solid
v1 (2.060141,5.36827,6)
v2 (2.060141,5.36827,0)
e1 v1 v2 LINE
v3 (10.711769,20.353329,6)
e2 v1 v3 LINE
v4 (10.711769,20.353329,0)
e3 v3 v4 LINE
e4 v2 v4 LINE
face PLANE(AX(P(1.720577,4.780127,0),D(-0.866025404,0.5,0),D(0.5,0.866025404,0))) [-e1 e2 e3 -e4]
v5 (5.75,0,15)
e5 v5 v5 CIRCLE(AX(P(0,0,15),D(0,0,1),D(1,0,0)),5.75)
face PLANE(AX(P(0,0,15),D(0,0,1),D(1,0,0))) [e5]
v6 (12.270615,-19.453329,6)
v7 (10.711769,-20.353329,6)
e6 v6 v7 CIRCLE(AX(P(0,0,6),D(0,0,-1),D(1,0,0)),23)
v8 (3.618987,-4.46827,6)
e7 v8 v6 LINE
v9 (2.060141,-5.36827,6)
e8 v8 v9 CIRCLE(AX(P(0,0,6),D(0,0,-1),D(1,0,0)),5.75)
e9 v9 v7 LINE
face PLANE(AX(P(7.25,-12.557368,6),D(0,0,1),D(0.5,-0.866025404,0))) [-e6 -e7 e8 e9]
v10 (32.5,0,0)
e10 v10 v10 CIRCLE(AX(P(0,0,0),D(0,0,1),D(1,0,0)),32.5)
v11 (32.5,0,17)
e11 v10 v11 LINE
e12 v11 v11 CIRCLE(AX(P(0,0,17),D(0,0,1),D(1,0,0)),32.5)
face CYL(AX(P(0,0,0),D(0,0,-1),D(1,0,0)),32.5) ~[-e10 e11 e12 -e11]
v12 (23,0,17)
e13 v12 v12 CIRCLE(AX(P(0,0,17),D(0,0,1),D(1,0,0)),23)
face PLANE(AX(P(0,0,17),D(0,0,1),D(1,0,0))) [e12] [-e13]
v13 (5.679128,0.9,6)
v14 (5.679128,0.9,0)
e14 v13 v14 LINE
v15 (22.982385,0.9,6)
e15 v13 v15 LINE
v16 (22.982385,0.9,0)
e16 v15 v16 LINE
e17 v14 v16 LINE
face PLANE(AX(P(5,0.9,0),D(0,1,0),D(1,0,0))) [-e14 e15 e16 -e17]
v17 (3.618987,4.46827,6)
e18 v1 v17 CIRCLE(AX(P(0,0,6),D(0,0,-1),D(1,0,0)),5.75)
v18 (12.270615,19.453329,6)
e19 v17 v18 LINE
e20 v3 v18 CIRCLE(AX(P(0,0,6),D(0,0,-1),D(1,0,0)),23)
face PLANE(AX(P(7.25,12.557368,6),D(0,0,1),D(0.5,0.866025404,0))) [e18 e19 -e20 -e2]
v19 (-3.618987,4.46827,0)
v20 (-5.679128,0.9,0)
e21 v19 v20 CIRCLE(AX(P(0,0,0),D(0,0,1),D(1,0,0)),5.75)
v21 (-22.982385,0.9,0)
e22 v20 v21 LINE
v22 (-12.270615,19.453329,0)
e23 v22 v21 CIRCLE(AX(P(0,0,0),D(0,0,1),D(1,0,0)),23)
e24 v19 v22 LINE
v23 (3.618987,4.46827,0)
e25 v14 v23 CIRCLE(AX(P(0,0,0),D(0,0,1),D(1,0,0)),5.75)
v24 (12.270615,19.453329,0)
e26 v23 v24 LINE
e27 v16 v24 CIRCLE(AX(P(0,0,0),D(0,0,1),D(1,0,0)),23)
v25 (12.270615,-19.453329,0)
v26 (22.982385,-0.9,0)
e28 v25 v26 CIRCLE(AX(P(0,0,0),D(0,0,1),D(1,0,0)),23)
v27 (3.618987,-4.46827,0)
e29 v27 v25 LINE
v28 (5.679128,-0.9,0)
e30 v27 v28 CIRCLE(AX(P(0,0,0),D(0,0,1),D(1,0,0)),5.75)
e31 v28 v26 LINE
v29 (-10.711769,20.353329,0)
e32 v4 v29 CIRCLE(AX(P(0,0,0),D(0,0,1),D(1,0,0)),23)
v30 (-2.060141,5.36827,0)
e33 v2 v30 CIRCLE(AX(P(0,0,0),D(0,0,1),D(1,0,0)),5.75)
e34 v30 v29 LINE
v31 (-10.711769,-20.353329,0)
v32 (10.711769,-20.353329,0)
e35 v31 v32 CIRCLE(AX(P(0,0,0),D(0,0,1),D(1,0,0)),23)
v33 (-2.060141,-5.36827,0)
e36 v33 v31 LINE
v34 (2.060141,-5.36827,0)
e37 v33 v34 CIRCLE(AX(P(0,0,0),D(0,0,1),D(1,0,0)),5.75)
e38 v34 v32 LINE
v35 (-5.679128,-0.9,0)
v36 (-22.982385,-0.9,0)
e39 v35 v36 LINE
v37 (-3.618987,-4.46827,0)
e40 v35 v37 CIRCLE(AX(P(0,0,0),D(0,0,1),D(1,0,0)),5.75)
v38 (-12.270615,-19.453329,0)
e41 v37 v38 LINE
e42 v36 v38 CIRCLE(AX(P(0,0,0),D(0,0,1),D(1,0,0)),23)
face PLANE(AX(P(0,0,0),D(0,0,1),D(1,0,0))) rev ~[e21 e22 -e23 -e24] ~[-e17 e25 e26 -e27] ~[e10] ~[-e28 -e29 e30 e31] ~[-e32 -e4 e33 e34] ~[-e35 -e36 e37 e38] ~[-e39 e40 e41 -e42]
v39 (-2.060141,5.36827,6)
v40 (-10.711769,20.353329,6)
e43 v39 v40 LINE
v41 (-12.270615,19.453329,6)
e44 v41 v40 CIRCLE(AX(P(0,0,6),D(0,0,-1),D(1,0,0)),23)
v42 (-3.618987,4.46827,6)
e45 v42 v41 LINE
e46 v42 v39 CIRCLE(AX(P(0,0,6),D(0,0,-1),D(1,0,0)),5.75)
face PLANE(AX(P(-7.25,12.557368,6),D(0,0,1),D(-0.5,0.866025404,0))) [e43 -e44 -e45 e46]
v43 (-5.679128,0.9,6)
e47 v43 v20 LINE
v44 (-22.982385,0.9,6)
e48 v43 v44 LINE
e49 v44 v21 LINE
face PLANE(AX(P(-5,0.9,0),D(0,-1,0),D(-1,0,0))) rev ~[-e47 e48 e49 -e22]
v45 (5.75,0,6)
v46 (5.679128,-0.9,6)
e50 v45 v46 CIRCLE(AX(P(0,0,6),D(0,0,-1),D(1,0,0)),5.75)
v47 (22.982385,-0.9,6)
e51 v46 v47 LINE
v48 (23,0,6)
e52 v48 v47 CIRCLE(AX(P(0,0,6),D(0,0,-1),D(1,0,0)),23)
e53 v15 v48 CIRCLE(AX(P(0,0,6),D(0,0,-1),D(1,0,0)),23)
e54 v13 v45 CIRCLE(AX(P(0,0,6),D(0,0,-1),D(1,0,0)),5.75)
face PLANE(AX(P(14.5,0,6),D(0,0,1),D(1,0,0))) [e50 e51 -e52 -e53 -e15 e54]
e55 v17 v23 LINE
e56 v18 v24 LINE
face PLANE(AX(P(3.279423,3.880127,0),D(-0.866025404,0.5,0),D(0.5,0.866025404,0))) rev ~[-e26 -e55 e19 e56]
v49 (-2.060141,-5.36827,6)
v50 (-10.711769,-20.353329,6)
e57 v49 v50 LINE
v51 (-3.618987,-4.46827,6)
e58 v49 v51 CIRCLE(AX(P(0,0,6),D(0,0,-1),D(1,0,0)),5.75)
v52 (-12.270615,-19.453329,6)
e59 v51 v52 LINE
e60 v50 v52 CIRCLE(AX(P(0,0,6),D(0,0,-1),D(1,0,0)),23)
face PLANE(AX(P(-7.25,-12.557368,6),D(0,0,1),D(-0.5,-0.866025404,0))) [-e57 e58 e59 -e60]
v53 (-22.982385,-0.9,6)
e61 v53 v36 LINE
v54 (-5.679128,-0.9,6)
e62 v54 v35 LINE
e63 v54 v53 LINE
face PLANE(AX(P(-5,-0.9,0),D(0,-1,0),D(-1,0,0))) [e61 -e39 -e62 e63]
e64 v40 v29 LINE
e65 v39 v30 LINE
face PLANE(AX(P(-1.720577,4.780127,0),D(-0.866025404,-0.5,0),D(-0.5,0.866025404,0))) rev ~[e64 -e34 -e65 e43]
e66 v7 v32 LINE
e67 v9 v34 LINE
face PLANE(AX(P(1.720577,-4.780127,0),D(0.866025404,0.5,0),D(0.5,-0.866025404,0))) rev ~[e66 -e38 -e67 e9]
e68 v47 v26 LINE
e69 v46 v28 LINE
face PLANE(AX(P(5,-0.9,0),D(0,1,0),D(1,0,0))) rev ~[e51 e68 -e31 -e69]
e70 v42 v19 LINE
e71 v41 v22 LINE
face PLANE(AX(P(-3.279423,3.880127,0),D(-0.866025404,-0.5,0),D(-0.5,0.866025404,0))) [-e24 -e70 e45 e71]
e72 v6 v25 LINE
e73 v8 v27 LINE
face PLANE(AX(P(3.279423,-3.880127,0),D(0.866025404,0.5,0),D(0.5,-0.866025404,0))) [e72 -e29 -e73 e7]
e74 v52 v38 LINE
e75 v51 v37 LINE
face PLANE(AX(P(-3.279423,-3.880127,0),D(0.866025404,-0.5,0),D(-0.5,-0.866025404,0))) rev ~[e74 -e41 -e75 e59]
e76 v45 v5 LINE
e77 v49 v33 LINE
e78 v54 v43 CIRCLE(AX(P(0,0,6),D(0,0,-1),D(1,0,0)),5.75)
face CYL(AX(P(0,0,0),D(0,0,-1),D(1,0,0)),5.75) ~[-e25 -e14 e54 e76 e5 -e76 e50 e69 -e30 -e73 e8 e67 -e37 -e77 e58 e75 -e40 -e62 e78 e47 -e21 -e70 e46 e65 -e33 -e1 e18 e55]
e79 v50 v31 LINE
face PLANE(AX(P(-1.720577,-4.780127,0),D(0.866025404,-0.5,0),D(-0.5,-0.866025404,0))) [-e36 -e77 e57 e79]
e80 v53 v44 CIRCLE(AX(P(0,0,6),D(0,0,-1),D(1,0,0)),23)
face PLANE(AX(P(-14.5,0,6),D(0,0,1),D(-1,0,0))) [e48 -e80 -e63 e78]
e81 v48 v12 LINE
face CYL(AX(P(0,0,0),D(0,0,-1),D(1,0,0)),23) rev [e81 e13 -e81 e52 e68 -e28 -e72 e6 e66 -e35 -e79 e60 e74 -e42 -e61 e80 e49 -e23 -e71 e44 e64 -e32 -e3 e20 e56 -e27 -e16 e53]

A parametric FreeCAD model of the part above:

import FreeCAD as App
import Part
import Sketcher

V = App.Vector

doc = App.newDocument("Part")
body = doc.addObject("PartDesign::Body", "Body")

# Sketch on XY plane
sketch1 = body.newObject("Sketcher::SketchObject", "Sketch")
sketch1.AttachmentSupport = (doc.getObject("XY_Plane"), [""])
sketch1.MapMode = "FlatFace"
sketch1.addGeometry([
    Part.LineSegment(V(5, 0.9, 0), V(5, -0.9, 0)),
    Part.LineSegment(V(5, -0.9, 0), V(24, -0.9, 0)),
    Part.LineSegment(V(24, -0.9, 0), V(24, 0.9, 0)),
    Part.LineSegment(V(24, 0.9, 0), V(5, 0.9, 0)),
], False)
sketch1.addConstraint([
    Sketcher.Constraint("Coincident", 0, 2, 1, 1),
    Sketcher.Constraint("Coincident", 1, 2, 2, 1),
    Sketcher.Constraint("Coincident", 2, 2, 3, 1),
    Sketcher.Constraint("Coincident", 3, 2, 0, 1),
    Sketcher.Constraint("Vertical", 0),
    Sketcher.Constraint("Horizontal", 1),
    Sketcher.Constraint("Vertical", 2),
    Sketcher.Constraint("Horizontal", 3),
    Sketcher.Constraint("DistanceX", 1, 1, 1, 2, 19.0),
    Sketcher.Constraint("DistanceY", 0, 2, 0, 1, 1.8),
    Sketcher.Constraint("DistanceX", -1, 1, 0, 2, 5.0),
    Sketcher.Constraint("DistanceY", 0, 2, -1, 1, 0.9),
])
pad1 = body.newObject("PartDesign::Pad", "Pad")
pad1.Profile = sketch1
pad1.Length = 6
body2 = doc.addObject("PartDesign::Body", "Body001")
body2.AllowCompound = True
doc.recompute()

body2.BaseFeature = body
doc.recompute()

body3 = doc.addObject("PartDesign::Body", "Body002")
body3.BaseFeature = body
body3.Placement = App.Placement(V(0, 0, 0), App.Rotation(V(0, 0, 1), 60))
boolean = body2.newObject("PartDesign::Boolean", "Boolean")
boolean.Type = "Fuse"
boolean.addObjects([body3])
doc.recompute()

body4 = doc.addObject("PartDesign::Body", "Body003")
body4.BaseFeature = body
body4.Placement = App.Placement(V(0, 0, 0), App.Rotation(V(0, 0, 1), 120))
boolean2 = body2.newObject("PartDesign::Boolean", "Boolean001")
boolean2.Type = "Fuse"
boolean2.addObjects([body4])
doc.recompute()

body5 = doc.addObject("PartDesign::Body", "Body004")
body5.BaseFeature = body
body5.Placement = App.Placement(V(0, 0, 0), App.Rotation(V(0, 0, 1), 180))
boolean3 = body2.newObject("PartDesign::Boolean", "Boolean002")
boolean3.Type = "Fuse"
boolean3.addObjects([body5])
doc.recompute()

body6 = doc.addObject("PartDesign::Body", "Body005")
body6.BaseFeature = body
body6.Placement = App.Placement(V(0, 0, 0), App.Rotation(V(0, 0, 1), 240))
boolean4 = body2.newObject("PartDesign::Boolean", "Boolean003")
boolean4.Type = "Fuse"
boolean4.addObjects([body6])
doc.recompute()

body.Placement = App.Placement(V(0, 0, 0), App.Rotation(V(0, 0, 1), 300))
boolean5 = body2.newObject("PartDesign::Boolean", "Boolean004")
boolean5.Type = "Fuse"
boolean5.addObjects([body])
body7 = doc.addObject("PartDesign::Body", "Body006")

# Sketch on XY plane
sketch2 = body7.newObject("Sketcher::SketchObject", "Sketch001")
sketch2.AttachmentSupport = (doc.getObject("XY_Plane006"), [""])
sketch2.MapMode = "FlatFace"
sketch2.addGeometry(Part.Circle(V(0, 0, 0), V(0, 0, 1), 6), False)
sketch2.addConstraint([
    Sketcher.Constraint("Coincident", 0, 3, -1, 1),
    Sketcher.Constraint("Diameter", 0, 11.5),
])
pad2 = body7.newObject("PartDesign::Pad", "Pad001")
pad2.Profile = sketch2
pad2.Length = 15
doc.recompute()

boolean6 = body7.newObject("PartDesign::Boolean", "Boolean005")
boolean6.Type = "Fuse"
boolean6.addObjects([body2])
body8 = doc.addObject("PartDesign::Body", "Body007")

# Sketch on XY plane
sketch3 = body8.newObject("Sketcher::SketchObject", "Sketch002")
sketch3.AttachmentSupport = (doc.getObject("XY_Plane007"), [""])
sketch3.MapMode = "FlatFace"
sketch3.addGeometry(Part.Circle(V(0, 0, 0), V(0, 0, 1), 23), False)
sketch3.addConstraint([
    Sketcher.Constraint("Coincident", 0, 3, -1, 1),
    Sketcher.Constraint("Diameter", 0, 46.0),
])
pad3 = body8.newObject("PartDesign::Pad", "Pad002")
pad3.Profile = sketch3
pad3.Length = 17
body9 = doc.addObject("PartDesign::Body", "Body008")

# Sketch on XY plane
sketch4 = body9.newObject("Sketcher::SketchObject", "Sketch003")
sketch4.AttachmentSupport = (doc.getObject("XY_Plane008"), [""])
sketch4.MapMode = "FlatFace"
sketch4.addGeometry(Part.Circle(V(0, 0, 0), V(0, 0, 1), 32), False)
sketch4.addConstraint([
    Sketcher.Constraint("Coincident", 0, 3, -1, 1),
    Sketcher.Constraint("Diameter", 0, 65.0),
])
pad4 = body9.newObject("PartDesign::Pad", "Pad003")
pad4.Profile = sketch4
pad4.Length = 17
doc.recompute()

boolean7 = body9.newObject("PartDesign::Boolean", "Boolean006")
boolean7.Type = "Cut"
boolean7.addObjects([body8])
doc.recompute()

boolean8 = body9.newObject("PartDesign::Boolean", "Boolean007")
boolean8.Type = "Fuse"
boolean8.addObjects([body7])

doc.recompute()
